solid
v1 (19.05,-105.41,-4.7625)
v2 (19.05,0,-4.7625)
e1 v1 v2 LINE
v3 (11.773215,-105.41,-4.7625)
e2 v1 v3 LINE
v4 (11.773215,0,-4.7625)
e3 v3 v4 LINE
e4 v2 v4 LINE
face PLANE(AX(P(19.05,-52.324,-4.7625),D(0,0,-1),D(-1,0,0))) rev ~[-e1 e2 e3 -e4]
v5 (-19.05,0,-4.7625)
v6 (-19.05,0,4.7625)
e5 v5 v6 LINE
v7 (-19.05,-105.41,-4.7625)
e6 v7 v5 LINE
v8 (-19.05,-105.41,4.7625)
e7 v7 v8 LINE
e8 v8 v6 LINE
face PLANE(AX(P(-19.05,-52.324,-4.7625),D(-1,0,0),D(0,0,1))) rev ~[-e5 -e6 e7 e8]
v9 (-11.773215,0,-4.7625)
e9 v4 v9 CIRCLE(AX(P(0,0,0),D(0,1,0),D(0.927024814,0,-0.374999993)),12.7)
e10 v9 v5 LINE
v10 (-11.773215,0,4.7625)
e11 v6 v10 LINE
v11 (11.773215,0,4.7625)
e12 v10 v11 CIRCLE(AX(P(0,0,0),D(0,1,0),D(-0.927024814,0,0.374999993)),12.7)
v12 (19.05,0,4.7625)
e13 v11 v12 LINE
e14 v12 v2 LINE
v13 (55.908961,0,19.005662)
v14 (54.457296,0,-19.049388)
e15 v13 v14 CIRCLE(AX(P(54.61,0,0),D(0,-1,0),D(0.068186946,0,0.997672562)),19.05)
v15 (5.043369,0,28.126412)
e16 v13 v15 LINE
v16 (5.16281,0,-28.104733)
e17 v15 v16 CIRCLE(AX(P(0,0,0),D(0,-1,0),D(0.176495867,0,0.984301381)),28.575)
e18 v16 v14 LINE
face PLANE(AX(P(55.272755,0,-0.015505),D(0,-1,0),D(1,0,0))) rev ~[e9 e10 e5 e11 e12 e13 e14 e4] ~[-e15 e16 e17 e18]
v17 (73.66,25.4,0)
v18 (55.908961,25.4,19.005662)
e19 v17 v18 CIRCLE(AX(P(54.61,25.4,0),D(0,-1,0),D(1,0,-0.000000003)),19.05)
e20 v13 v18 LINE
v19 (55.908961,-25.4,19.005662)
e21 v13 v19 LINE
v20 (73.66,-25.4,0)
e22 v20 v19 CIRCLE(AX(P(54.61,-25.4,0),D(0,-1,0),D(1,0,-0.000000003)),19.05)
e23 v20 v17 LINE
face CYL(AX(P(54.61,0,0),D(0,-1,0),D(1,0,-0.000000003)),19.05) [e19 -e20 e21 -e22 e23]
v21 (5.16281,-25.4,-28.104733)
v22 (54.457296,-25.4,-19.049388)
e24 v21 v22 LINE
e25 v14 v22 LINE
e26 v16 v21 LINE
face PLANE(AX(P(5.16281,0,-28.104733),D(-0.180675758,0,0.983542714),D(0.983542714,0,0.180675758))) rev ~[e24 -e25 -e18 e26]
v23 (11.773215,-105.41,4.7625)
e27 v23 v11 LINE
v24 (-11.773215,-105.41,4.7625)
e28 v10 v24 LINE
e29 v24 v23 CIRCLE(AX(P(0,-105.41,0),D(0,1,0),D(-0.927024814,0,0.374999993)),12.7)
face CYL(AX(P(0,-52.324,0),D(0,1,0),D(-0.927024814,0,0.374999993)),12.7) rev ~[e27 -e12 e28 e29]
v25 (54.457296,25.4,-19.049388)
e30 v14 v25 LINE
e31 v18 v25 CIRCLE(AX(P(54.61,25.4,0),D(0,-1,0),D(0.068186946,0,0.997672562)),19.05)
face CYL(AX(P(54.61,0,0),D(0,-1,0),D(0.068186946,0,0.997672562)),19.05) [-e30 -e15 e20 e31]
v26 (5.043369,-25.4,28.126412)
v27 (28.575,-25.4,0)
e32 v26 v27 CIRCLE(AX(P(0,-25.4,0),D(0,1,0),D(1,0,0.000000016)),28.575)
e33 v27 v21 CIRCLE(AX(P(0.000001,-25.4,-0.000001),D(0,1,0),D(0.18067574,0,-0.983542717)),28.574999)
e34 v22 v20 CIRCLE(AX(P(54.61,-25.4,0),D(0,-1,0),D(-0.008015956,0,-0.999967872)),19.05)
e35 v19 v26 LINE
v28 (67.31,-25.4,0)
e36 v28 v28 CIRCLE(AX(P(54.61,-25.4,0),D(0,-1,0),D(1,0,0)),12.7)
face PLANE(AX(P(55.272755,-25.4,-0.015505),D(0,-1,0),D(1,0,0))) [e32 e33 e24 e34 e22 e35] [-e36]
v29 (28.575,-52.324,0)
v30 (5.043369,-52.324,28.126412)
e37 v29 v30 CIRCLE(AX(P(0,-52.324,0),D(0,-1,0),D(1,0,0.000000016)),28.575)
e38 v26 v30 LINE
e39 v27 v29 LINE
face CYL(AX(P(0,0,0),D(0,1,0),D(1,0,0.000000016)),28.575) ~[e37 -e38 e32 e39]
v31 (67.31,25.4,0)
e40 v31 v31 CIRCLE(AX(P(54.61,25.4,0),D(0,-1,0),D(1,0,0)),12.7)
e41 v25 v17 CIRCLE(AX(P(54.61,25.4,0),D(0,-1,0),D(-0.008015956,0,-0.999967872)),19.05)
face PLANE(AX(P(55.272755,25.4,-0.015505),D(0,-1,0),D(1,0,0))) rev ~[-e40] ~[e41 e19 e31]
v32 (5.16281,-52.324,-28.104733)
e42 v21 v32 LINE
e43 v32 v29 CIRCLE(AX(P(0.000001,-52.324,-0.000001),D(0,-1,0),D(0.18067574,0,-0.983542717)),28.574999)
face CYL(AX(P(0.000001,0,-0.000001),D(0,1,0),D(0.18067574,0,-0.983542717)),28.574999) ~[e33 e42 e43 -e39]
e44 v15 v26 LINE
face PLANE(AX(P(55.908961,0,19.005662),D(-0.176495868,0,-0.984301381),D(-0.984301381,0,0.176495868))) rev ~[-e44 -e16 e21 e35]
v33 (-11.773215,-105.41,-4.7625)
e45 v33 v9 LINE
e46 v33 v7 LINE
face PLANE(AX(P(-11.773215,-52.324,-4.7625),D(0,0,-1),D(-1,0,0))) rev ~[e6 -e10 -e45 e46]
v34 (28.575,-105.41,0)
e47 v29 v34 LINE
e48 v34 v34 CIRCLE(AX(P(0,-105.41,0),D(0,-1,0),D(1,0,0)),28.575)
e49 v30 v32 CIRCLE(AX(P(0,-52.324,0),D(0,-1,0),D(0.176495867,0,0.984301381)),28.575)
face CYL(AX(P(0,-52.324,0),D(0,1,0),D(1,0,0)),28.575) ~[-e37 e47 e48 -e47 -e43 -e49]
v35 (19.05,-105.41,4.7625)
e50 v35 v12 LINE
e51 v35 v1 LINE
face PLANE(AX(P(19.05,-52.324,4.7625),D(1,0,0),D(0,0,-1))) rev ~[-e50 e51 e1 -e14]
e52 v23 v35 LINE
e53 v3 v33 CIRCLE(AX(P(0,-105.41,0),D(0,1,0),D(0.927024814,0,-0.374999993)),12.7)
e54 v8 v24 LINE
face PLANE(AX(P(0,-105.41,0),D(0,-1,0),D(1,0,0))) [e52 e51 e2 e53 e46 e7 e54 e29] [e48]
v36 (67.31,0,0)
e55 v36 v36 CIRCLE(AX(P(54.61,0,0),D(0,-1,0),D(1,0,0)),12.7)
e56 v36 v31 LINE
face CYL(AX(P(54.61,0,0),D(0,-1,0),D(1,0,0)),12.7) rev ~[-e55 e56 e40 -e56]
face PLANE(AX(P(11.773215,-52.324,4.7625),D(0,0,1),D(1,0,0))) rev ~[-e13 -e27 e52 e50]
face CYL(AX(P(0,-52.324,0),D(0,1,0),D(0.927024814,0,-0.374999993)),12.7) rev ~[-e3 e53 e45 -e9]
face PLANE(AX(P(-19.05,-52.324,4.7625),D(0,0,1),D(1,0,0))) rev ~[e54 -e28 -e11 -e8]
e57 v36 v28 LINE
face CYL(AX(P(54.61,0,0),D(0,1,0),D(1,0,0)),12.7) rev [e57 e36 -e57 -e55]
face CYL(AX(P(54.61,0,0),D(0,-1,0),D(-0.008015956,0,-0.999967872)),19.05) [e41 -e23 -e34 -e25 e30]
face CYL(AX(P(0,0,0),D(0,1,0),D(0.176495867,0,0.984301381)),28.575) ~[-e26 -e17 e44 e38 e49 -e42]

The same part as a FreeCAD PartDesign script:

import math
import FreeCAD as App
import Part
import Sketcher

V = App.Vector
Q = App.Units.Quantity

doc = App.newDocument("Part")
body = doc.addObject("PartDesign::Body", "Body")

# Sketch on XZ plane
sketch1 = body.newObject("Sketcher::SketchObject", "Sketch")
sketch1.AttachmentSupport = (doc.getObject("XZ_Plane"), [""])
sketch1.MapMode = "FlatFace"
sketch1.addGeometry(Part.ArcOfCircle(Part.Circle(V(55, 0, 0), V(0, 0, 1), 19), math.radians(0), math.radians(86)), False)
sketch1.addGeometry(Part.LineSegment(V(56, 19, 0), V(5, 28, 0)), False)
sketch1.addGeometry(Part.ArcOfCircle(Part.Circle(V(0, 0, 0), V(0, 0, 1), 29), math.radians(80), math.radians(280)), False)
sketch1.addGeometry(Part.LineSegment(V(5, -28, 0), V(54, -19, 0)), False)
sketch1.addGeometry(Part.ArcOfCircle(Part.Circle(V(55, 0, 0), V(0, 0, 1), 19), math.radians(-90), math.radians(0)), False)
sketch1.addGeometry(Part.Circle(V(55, 0, 0), V(0, 0, 1), 13), False)
sketch1.addGeometry(Part.LineSegment(V(12, 5, 0), V(19, 5, 0)), False)
sketch1.addGeometry(Part.LineSegment(V(19, 5, 0), V(19, -5, 0)), False)
sketch1.addGeometry(Part.LineSegment(V(19, -5, 0), V(12, -5, 0)), False)
sketch1.addGeometry(Part.ArcOfCircle(Part.Circle(V(0, 0, 0), V(0, 0, 1), 13), math.radians(-158), math.radians(-22)), False)
sketch1.addGeometry(Part.LineSegment(V(-12, -5, 0), V(-19, -5, 0)), False)
sketch1.addGeometry(Part.LineSegment(V(-19, -5, 0), V(-19, 5, 0)), False)
sketch1.addGeometry(Part.LineSegment(V(-19, 5, 0), V(-12, 5, 0)), False)
sketch1.addGeometry(Part.ArcOfCircle(Part.Circle(V(0, 0, 0), V(0, 0, 1), 13), math.radians(22), math.radians(158)), False)
sketch1.addConstraint(Sketcher.Constraint("Coincident", 0, 2, 1, 1))
sketch1.addConstraint(Sketcher.Constraint("Tangent", 1, 2, 2, 1))
sketch1.addConstraint(Sketcher.Constraint("Tangent", 2, 2, 3, 1))
sketch1.addConstraint(Sketcher.Constraint("Coincident", 3, 2, 4, 1))
sketch1.addConstraint(Sketcher.Constraint("Tangent", 4, 2, 0, 1))
sketch1.addConstraint(Sketcher.Constraint("Coincident", 6, 2, 7, 1))
sketch1.addConstraint(Sketcher.Constraint("Coincident", 7, 2, 8, 1))
sketch1.addConstraint(Sketcher.Constraint("Coincident", 8, 2, 9, 2))
sketch1.addConstraint(Sketcher.Constraint("Coincident", 9, 1, 10, 1))
sketch1.addConstraint(Sketcher.Constraint("Coincident", 10, 2, 11, 1))
sketch1.addConstraint(Sketcher.Constraint("Coincident", 11, 2, 12, 1))
sketch1.addConstraint(Sketcher.Constraint("Coincident", 12, 2, 13, 2))
sketch1.addConstraint(Sketcher.Constraint("Coincident", 13, 1, 6, 1))
sketch1.addConstraint(Sketcher.Constraint("Horizontal", 6))
sketch1.addConstraint(Sketcher.Constraint("Vertical", 7))
sketch1.addConstraint(Sketcher.Constraint("Horizontal", 8))
sketch1.addConstraint(Sketcher.Constraint("Horizontal", 10))
sketch1.addConstraint(Sketcher.Constraint("Vertical", 11))
sketch1.addConstraint(Sketcher.Constraint("Horizontal", 12))
sketch1.addConstraint(Sketcher.Constraint("Coincident", 2, 3, -1, 1))
sketch1.addConstraint(Sketcher.Constraint("Coincident", 9, 3, -1, 1))
sketch1.addConstraint(Sketcher.Constraint("Coincident", 13, 3, -1, 1))
sketch1.addConstraint(Sketcher.Constraint("Coincident", 5, 3, 0, 3))
sketch1.addConstraint(Sketcher.Constraint("Equal", 0, 4))
sketch1.addConstraint(Sketcher.Constraint("Equal", 5, 9))
sketch1.addConstraint(Sketcher.Constraint("Equal", 9, 13))
sketch1.addConstraint(Sketcher.Constraint("Symmetric", 6, 2, 10, 2, -1, 1))
sketch1.addConstraint(Sketcher.Constraint("PointOnObject", 0, 3, -1))
sketch1.addConstraint(Sketcher.Constraint("PointOnObject", 4, 2, -1))
sketch1.addConstraint(Sketcher.Constraint("Horizontal", 8, 2, 9, 1))
sketch1.addConstraint(Sketcher.Constraint("Horizontal", 6, 2, 11, 2))
sketch1.addConstraint(Sketcher.Constraint("Diameter", 5, Q("1 in")))
sketch1.addConstraint(Sketcher.Constraint("Radius", 0, Q("0.75 in")))
sketch1.addConstraint(Sketcher.Constraint("Radius", 2, Q("1.125 in")))
sketch1.addConstraint(Sketcher.Constraint("DistanceX", -1, 1, 4, 2, Q("2.9 in")))
sketch1.addConstraint(Sketcher.Constraint("DistanceY", 7, 2, 7, 1, Q("0.375 in")))
sketch1.addConstraint(Sketcher.Constraint("DistanceX", -1, 1, 6, 2, Q("0.75 in")))
sketch1.addConstraint(Sketcher.Constraint("DistanceX", -1, 1, 0, 2, 55.908961))
sketch1.addConstraint(Sketcher.Constraint("DistanceX", -1, 1, 2, 2, 5.16281))
pad1 = body.newObject("PartDesign::Pad", "Pad")
pad1.Profile = sketch1
pad1.Length = Q("1 in")

# Sketch on XZ plane
sketch2 = body.newObject("Sketcher::SketchObject", "Sketch001")
sketch2.AttachmentSupport = (doc.getObject("XZ_Plane"), [""])
sketch2.MapMode = "FlatFace"
sketch2.addGeometry(Part.ArcOfCircle(Part.Circle(V(0, 0, 0), V(0, 0, 1), 29), math.radians(-80), math.radians(0)), False)
sketch2.addGeometry(Part.ArcOfCircle(Part.Circle(V(0, 0, 0), V(0, 0, 1), 29), math.radians(0), math.radians(80)), False)
sketch2.addGeometry(Part.ArcOfCircle(Part.Circle(V(0, 0, 0), V(0, 0, 1), 29), math.radians(80), math.radians(280)), False)
sketch2.addGeometry(Part.LineSegment(V(-19, 5, 0), V(-12, 5, 0)), False)
sketch2.addGeometry(Part.ArcOfCircle(Part.Circle(V(0, 0, 0), V(0, 0, 1), 13), math.radians(22), math.radians(158)), False)
sketch2.addGeometry(Part.LineSegment(V(12, 5, 0), V(19, 5, 0)), False)
sketch2.addGeometry(Part.LineSegment(V(19, 5, 0), V(19, -5, 0)), False)
sketch2.addGeometry(Part.LineSegment(V(19, -5, 0), V(12, -5, 0)), False)
sketch2.addGeometry(Part.ArcOfCircle(Part.Circle(V(0, 0, 0), V(0, 0, 1), 13), math.radians(-158), math.radians(-22)), False)
sketch2.addGeometry(Part.LineSegment(V(-12, -5, 0), V(-19, -5, 0)), False)
sketch2.addGeometry(Part.LineSegment(V(-19, -5, 0), V(-19, 5, 0)), False)
sketch2.addConstraint(Sketcher.Constraint("Tangent", 0, 2, 1, 1))
sketch2.addConstraint(Sketcher.Constraint("Tangent", 1, 2, 2, 1))
sketch2.addConstraint(Sketcher.Constraint("Tangent", 2, 2, 0, 1))
sketch2.addConstraint(Sketcher.Constraint("Coincident", 3, 2, 4, 2))
sketch2.addConstraint(Sketcher.Constraint("Coincident", 4, 1, 5, 1))
sketch2.addConstraint(Sketcher.Constraint("Coincident", 5, 2, 6, 1))
sketch2.addConstraint(Sketcher.Constraint("Coincident", 6, 2, 7, 1))
sketch2.addConstraint(Sketcher.Constraint("Coincident", 7, 2, 8, 2))
sketch2.addConstraint(Sketcher.Constraint("Coincident", 8, 1, 9, 1))
sketch2.addConstraint(Sketcher.Constraint("Coincident", 9, 2, 10, 1))
sketch2.addConstraint(Sketcher.Constraint("Coincident", 10, 2, 3, 1))
sketch2.addConstraint(Sketcher.Constraint("Horizontal", 3))
sketch2.addConstraint(Sketcher.Constraint("Horizontal", 5))
sketch2.addConstraint(Sketcher.Constraint("Vertical", 6))
sketch2.addConstraint(Sketcher.Constraint("Horizontal", 7))
sketch2.addConstraint(Sketcher.Constraint("Horizontal", 9))
sketch2.addConstraint(Sketcher.Constraint("Vertical", 10))
sketch2.addConstraint(Sketcher.Constraint("Coincident", 0, 3, -1, 1))
sketch2.addConstraint(Sketcher.Constraint("Coincident", 4, 3, -1, 1))
sketch2.addConstraint(Sketcher.Constraint("Coincident", 8, 3, -1, 1))
sketch2.addConstraint(Sketcher.Constraint("Equal", 4, 8))
sketch2.addConstraint(Sketcher.Constraint("Symmetric", 5, 2, 9, 2, -1, 1))
sketch2.addConstraint(Sketcher.Constraint("PointOnObject", 0, 2, -1))
sketch2.addConstraint(Sketcher.Constraint("Horizontal", 3, 2, 4, 1))
sketch2.addConstraint(Sketcher.Constraint("Horizontal", 7, 2, 8, 1))
sketch2.addConstraint(Sketcher.Constraint("Radius", 4, Q("0.5 in")))
sketch2.addConstraint(Sketcher.Constraint("Radius", 0, Q("1.125 in")))
sketch2.addConstraint(Sketcher.Constraint("DistanceY", 6, 2, 6, 1, Q("0.375 in")))
sketch2.addConstraint(Sketcher.Constraint("DistanceX", -1, 1, 5, 2, Q("0.75 in")))
sketch2.addConstraint(Sketcher.Constraint("DistanceX", -1, 1, 1, 2, 5.043369))
sketch2.addConstraint(Sketcher.Constraint("DistanceX", -1, 1, 2, 2, 5.16281))
pad2 = body.newObject("PartDesign::Pad", "Pad001")
pad2.Profile = sketch2
pad2.Length = Q("2.06 in")

# Sketch on XZ plane
sketch3 = body.newObject("Sketcher::SketchObject", "Sketch002")
sketch3.AttachmentSupport = (doc.getObject("XZ_Plane"), [""])
sketch3.MapMode = "FlatFace"
sketch3.AttachmentOffset = App.Placement(V(0, 0, 2.06 * 25.4), App.Rotation())
sketch3.addGeometry(Part.Circle(V(0, 0, 0), V(0, 0, 1), 29), False)
sketch3.addGeometry(Part.LineSegment(V(-19, 5, 0), V(-12, 5, 0)), False)
sketch3.addGeometry(Part.ArcOfCircle(Part.Circle(V(0, 0, 0), V(0, 0, 1), 13), math.radians(22), math.radians(158)), False)
sketch3.addGeometry(Part.LineSegment(V(12, 5, 0), V(19, 5, 0)), False)
sketch3.addGeometry(Part.LineSegment(V(19, 5, 0), V(19, -5, 0)), False)
sketch3.addGeometry(Part.LineSegment(V(19, -5, 0), V(12, -5, 0)), False)
sketch3.addGeometry(Part.ArcOfCircle(Part.Circle(V(0, 0, 0), V(0, 0, 1), 13), math.radians(-158), math.radians(-22)), False)
sketch3.addGeometry(Part.LineSegment(V(-12, -5, 0), V(-19, -5, 0)), False)
sketch3.addGeometry(Part.LineSegment(V(-19, -5, 0), V(-19, 5, 0)), False)
sketch3.addConstraint(Sketcher.Constraint("Coincident", 1, 2, 2, 2))
sketch3.addConstraint(Sketcher.Constraint("Coincident", 2, 1, 3, 1))
sketch3.addConstraint(Sketcher.Constraint("Coincident", 3, 2, 4, 1))
sketch3.addConstraint(Sketcher.Constraint("Coincident", 4, 2, 5, 1))
sketch3.addConstraint(Sketcher.Constraint("Coincident", 5, 2, 6, 2))
sketch3.addConstraint(Sketcher.Constraint("Coincident", 6, 1, 7, 1))
sketch3.addConstraint(Sketcher.Constraint("Coincident", 7, 2, 8, 1))
sketch3.addConstraint(Sketcher.Constraint("Coincident", 8, 2, 1, 1))
sketch3.addConstraint(Sketcher.Constraint("Horizontal", 1))
sketch3.addConstraint(Sketcher.Constraint("Horizontal", 3))
sketch3.addConstraint(Sketcher.Constraint("Vertical", 4))
sketch3.addConstraint(Sketcher.Constraint("Horizontal", 5))
sketch3.addConstraint(Sketcher.Constraint("Horizontal", 7))
sketch3.addConstraint(Sketcher.Constraint("Vertical", 8))
sketch3.addConstraint(Sketcher.Constraint("Coincident", 0, 3, -1, 1))
sketch3.addConstraint(Sketcher.Constraint("Coincident", 2, 3, -1, 1))
sketch3.addConstraint(Sketcher.Constraint("Coincident", 6, 3, -1, 1))
sketch3.addConstraint(Sketcher.Constraint("Equal", 2, 6))
sketch3.addConstraint(Sketcher.Constraint("Symmetric", 3, 2, 7, 2, -1, 1))
sketch3.addConstraint(Sketcher.Constraint("Horizontal", 1, 2, 2, 1))
sketch3.addConstraint(Sketcher.Constraint("Horizontal", 5, 2, 6, 1))
sketch3.addConstraint(Sketcher.Constraint("Radius", 2, Q("0.5 in")))
sketch3.addConstraint(Sketcher.Constraint("Diameter", 0, Q("2.25 in")))
sketch3.addConstraint(Sketcher.Constraint("DistanceY", 4, 2, 4, 1, Q("0.375 in")))
sketch3.addConstraint(Sketcher.Constraint("DistanceX", -1, 1, 3, 2, Q("0.75 in")))
pad3 = body.newObject("PartDesign::Pad", "Pad002")
pad3.Profile = sketch3
pad3.Length = Q("2.09 in")

# Sketch on XZ plane
sketch4 = body.newObject("Sketcher::SketchObject", "Sketch003")
sketch4.AttachmentSupport = (doc.getObject("XZ_Plane"), [""])
sketch4.MapMode = "FlatFace"
sketch4.addGeometry(Part.ArcOfCircle(Part.Circle(V(54.61, 0, 0), V(0, 0, 1), 19.05), math.radians(0), math.radians(86.090144)), False)
sketch4.addGeometry(Part.ArcOfCircle(Part.Circle(V(54.61, 0, 0), V(0, 0, 1), 19.05), math.radians(86.090142), math.radians(269.540715)), False)
sketch4.addGeometry(Part.ArcOfCircle(Part.Circle(V(54.61, 0, 0), V(0, 0, 1), 19.05), math.radians(-90.459285), math.radians(0)), False)
sketch4.addGeometry(Part.Circle(V(54.61, 0, 0), V(0, 0, 1), 12.7), False)
sketch4.addConstraint(Sketcher.Constraint("Tangent", 0, 2, 1, 1))
sketch4.addConstraint(Sketcher.Constraint("Tangent", 1, 2, 2, 1))
sketch4.addConstraint(Sketcher.Constraint("Tangent", 2, 2, 0, 1))
sketch4.addConstraint(Sketcher.Constraint("Coincident", 3, 3, 0, 3))
sketch4.addConstraint(Sketcher.Constraint("PointOnObject", 0, 3, -1))
sketch4.addConstraint(Sketcher.Constraint("PointOnObject", 2, 2, -1))
sketch4.addConstraint(Sketcher.Constraint("Diameter", 3, Q("1 in")))
sketch4.addConstraint(Sketcher.Constraint("Radius", 0, Q("0.75 in")))
sketch4.addConstraint(Sketcher.Constraint("DistanceX", -1, 1, 2, 2, Q("2.9 in")))
sketch4.addConstraint(Sketcher.Constraint("DistanceX", -1, 1, 0, 2, 55.908961))
sketch4.addConstraint(Sketcher.Constraint("DistanceY", 1, 2, -1, 1, 19.049388))
pad4 = body.newObject("PartDesign::Pad", "Pad003")
pad4.Profile = sketch4
pad4.Length = Q("1 in")
pad4.Reversed = True

doc.recompute()
